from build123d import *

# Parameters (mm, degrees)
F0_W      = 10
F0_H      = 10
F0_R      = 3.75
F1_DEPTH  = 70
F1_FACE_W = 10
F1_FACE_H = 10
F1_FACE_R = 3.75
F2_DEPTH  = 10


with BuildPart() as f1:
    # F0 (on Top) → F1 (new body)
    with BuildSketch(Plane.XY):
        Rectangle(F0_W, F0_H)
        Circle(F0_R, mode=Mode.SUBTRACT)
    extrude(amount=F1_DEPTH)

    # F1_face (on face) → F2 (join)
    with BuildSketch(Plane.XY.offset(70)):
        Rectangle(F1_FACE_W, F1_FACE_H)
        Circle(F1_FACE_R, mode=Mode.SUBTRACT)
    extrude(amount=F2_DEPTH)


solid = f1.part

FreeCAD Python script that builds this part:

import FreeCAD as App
import Part
import Sketcher

doc = App.newDocument("Part")
body = doc.addObject("PartDesign::Body", "Body")

sketch1 = body.newObject("Sketcher::SketchObject", "Sketch")
sketch1.AttachmentSupport = (doc.getObject("XY_Plane"), [""])
sketch1.MapMode = "FlatFace"
sketch1.addGeometry(Part.LineSegment(App.Vector(-5, 5, 0), App.Vector(-5, -5, 0)), False)
sketch1.addGeometry(Part.LineSegment(App.Vector(-5, -5, 0), App.Vector(5, -5, 0)), False)
sketch1.addGeometry(Part.LineSegment(App.Vector(5, -5, 0), App.Vector(5, 5, 0)), False)
sketch1.addGeometry(Part.LineSegment(App.Vector(5, 5, 0), App.Vector(-5, 5, 0)), False)
sketch1.addGeometry(Part.Circle(App.Vector(0, 0, 0), App.Vector(0, 0, 1), 3.8), False)
sketch1.addConstraint(Sketcher.Constraint("Coincident", 0, 2, 1, 1))
sketch1.addConstraint(Sketcher.Constraint("Coincident", 1, 2, 2, 1))
sketch1.addConstraint(Sketcher.Constraint("Coincident", 2, 2, 3, 1))
sketch1.addConstraint(Sketcher.Constraint("Coincident", 3, 2, 0, 1))
sketch1.addConstraint(Sketcher.Constraint("Vertical", 0))
sketch1.addConstraint(Sketcher.Constraint("Horizontal", 1))
sketch1.addConstraint(Sketcher.Constraint("Vertical", 2))
sketch1.addConstraint(Sketcher.Constraint("Horizontal", 3))
sketch1.addConstraint(Sketcher.Constraint("Coincident", 4, 3, -1, 1))
sketch1.addConstraint(Sketcher.Constraint("Symmetric", 0, 2, 2, 2, -1, 1))
sketch1.addConstraint(Sketcher.Constraint("Equal", 3, 0))
sketch1.addConstraint(Sketcher.Constraint("Diameter", 4, 7.5))
sketch1.addConstraint(Sketcher.Constraint("DistanceX", 1, 1, 1, 2, 10.0))
pad1 = body.newObject("PartDesign::Pad", "Pad")
pad1.Profile = sketch1
pad1.Length = 70

sketch2 = body.newObject("Sketcher::SketchObject", "Sketch001")
sketch2.AttachmentSupport = (doc.getObject("XY_Plane"), [""])
sketch2.MapMode = "FlatFace"
sketch2.AttachmentOffset = App.Placement(App.Vector(0, 0, 70), App.Rotation())
sketch2.addGeometry(Part.LineSegment(App.Vector(-5, 5, 0), App.Vector(-5, -5, 0)), False)
sketch2.addGeometry(Part.LineSegment(App.Vector(-5, -5, 0), App.Vector(5, -5, 0)), False)
sketch2.addGeometry(Part.LineSegment(App.Vector(5, -5, 0), App.Vector(5, 5, 0)), False)
sketch2.addGeometry(Part.LineSegment(App.Vector(5, 5, 0), App.Vector(-5, 5, 0)), False)
sketch2.addGeometry(Part.Circle(App.Vector(0, 0, 0), App.Vector(0, 0, 1), 3.8), False)
sketch2.addConstraint(Sketcher.Constraint("Coincident", 0, 2, 1, 1))
sketch2.addConstraint(Sketcher.Constraint("Coincident", 1, 2, 2, 1))
sketch2.addConstraint(Sketcher.Constraint("Coincident", 2, 2, 3, 1))
sketch2.addConstraint(Sketcher.Constraint("Coincident", 3, 2, 0, 1))
sketch2.addConstraint(Sketcher.Constraint("Vertical", 0))
sketch2.addConstraint(Sketcher.Constraint("Horizontal", 1))
sketch2.addConstraint(Sketcher.Constraint("Vertical", 2))
sketch2.addConstraint(Sketcher.Constraint("Horizontal", 3))
sketch2.addConstraint(Sketcher.Constraint("Coincident", 4, 3, -1, 1))
sketch2.addConstraint(Sketcher.Constraint("Symmetric", 0, 2, 2, 2, -1, 1))
sketch2.addConstraint(Sketcher.Constraint("Equal", 3, 0))
sketch2.addConstraint(Sketcher.Constraint("Diameter", 4, 7.5))
sketch2.addConstraint(Sketcher.Constraint("DistanceX", 1, 1, 1, 2, 10.0))
pad2 = body.newObject("PartDesign::Pad", "Pad001")
pad2.Profile = sketch2
pad2.Length = 10

doc.recompute()
